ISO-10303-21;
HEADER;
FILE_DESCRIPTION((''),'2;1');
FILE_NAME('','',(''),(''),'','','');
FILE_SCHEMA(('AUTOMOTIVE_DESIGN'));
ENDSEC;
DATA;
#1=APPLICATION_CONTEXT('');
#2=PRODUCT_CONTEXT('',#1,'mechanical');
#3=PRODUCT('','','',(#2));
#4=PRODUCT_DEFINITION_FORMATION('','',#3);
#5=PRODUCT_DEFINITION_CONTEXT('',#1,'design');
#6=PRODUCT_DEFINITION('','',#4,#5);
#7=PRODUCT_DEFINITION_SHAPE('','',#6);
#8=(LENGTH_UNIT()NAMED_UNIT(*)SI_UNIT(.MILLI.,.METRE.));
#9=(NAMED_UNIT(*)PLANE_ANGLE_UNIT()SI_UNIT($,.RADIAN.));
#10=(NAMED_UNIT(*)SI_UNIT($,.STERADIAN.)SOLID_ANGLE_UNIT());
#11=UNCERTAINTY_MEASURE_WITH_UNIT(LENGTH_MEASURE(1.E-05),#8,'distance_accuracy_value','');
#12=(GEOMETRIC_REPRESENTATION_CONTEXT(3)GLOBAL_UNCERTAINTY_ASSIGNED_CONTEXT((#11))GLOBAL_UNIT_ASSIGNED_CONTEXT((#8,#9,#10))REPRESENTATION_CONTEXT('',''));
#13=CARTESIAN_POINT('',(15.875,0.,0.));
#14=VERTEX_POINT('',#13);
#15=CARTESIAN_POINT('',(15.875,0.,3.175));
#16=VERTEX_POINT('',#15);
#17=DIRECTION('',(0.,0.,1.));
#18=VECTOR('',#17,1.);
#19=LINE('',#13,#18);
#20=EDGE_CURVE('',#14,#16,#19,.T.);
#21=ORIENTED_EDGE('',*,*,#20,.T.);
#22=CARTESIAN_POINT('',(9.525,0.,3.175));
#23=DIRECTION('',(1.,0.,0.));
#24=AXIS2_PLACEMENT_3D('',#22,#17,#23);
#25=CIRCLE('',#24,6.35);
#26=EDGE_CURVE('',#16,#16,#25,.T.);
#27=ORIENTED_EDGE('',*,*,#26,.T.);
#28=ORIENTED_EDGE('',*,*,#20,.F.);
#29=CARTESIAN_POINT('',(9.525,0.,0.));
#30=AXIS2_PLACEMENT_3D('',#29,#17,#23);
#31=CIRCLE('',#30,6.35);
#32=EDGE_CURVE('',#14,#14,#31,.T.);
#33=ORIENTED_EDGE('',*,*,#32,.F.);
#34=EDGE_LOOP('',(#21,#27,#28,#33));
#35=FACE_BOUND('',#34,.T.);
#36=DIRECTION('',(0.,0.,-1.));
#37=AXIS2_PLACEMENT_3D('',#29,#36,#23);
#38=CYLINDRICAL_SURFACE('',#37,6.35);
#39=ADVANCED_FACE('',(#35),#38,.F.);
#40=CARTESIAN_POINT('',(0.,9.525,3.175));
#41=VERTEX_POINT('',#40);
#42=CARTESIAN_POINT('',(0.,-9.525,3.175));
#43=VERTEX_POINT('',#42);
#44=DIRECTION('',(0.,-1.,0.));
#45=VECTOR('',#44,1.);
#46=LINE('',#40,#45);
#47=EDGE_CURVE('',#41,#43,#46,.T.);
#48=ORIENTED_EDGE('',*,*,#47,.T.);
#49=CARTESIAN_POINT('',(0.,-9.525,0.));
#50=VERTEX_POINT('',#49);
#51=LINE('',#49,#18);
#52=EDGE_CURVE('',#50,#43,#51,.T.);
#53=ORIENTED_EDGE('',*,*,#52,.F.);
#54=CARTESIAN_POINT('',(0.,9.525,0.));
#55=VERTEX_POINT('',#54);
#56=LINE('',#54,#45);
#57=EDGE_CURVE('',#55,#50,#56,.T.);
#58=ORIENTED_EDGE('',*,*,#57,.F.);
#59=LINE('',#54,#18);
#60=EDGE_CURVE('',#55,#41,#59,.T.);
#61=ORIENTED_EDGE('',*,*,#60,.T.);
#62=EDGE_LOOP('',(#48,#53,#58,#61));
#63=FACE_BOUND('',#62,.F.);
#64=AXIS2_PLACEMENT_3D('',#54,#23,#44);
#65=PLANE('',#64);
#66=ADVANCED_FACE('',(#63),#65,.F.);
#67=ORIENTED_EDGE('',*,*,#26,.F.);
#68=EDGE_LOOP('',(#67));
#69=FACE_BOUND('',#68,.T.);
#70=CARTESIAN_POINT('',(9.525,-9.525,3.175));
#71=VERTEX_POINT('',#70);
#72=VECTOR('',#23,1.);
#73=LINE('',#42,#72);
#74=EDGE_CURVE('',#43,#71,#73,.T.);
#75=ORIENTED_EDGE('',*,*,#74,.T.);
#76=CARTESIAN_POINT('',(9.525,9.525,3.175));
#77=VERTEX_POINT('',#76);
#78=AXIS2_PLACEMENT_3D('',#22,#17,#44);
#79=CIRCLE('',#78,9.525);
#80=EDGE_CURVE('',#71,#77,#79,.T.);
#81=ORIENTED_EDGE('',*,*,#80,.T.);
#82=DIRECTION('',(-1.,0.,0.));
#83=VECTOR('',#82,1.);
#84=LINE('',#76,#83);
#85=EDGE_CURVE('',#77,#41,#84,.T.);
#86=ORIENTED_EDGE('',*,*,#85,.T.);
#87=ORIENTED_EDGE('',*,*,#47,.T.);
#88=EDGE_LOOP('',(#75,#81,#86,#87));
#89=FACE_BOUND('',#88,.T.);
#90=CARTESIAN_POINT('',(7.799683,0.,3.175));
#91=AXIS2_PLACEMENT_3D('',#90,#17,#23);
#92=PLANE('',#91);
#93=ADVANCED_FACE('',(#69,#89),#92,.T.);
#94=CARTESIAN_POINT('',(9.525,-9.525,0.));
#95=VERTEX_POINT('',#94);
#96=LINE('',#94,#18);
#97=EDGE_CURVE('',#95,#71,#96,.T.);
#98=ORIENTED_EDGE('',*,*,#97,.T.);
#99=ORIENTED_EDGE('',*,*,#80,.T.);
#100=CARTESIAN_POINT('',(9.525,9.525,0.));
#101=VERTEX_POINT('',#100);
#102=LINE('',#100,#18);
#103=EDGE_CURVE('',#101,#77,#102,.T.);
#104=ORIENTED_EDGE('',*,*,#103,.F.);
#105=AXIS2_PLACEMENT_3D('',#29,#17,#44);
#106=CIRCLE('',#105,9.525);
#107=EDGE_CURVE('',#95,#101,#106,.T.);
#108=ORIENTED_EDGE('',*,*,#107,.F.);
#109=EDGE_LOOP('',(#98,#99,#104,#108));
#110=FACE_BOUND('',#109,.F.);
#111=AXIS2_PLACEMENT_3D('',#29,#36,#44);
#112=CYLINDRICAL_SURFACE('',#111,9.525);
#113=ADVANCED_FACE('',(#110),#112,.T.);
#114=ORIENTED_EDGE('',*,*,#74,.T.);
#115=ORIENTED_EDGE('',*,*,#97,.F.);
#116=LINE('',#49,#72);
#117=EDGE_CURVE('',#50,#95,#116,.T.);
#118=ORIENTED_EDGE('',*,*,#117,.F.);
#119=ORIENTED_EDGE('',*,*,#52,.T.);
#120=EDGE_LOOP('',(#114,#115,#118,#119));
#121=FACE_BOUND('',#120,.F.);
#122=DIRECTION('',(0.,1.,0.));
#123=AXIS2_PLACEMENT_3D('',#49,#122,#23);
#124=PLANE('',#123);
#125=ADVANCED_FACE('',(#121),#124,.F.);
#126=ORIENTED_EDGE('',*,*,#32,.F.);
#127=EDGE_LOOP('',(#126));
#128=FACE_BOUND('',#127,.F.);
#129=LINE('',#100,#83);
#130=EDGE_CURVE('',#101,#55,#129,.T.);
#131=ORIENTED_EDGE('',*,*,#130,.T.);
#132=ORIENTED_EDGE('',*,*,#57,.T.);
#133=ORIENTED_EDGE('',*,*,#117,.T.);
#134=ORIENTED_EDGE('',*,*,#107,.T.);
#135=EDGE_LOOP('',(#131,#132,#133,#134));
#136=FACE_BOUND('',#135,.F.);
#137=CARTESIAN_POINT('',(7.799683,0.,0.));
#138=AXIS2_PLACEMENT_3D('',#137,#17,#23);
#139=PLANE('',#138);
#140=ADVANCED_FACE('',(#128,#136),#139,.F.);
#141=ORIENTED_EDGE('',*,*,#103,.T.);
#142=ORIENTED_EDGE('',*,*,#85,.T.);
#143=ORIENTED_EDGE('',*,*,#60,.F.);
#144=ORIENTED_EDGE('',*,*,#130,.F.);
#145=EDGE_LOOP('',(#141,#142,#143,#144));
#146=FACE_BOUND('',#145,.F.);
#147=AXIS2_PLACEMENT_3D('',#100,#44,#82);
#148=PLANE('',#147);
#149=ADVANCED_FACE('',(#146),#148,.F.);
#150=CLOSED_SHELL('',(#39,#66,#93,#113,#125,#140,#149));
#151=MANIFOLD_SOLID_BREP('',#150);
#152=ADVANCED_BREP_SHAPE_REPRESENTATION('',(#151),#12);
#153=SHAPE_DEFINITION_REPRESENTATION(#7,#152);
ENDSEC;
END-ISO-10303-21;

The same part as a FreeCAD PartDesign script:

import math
import FreeCAD as App
import Part
import Sketcher
Q = App.Units.Quantity

doc = App.newDocument("Part")
params = doc.addObject("Spreadsheet::Sheet", "Params")
for row, (alias, value) in enumerate([
    ("sketch1_diameter", "0.5 in"),
    ("sketch1_radius", "0.375 in"),
    ("sketch1_width", "0.375 in"),
    ("pad1_length", "0.125 in"),
], start=1):
    params.set(f"A{row}", alias)
    params.set(f"B{row}", "=" + value)
    params.setAlias(f"B{row}", alias)

body = doc.addObject("PartDesign::Body", "Body")

# Sketch on XY plane
sketch1 = doc.addObject("Sketcher::SketchObject", "Sketch")
body.addObject(sketch1)
sketch1.AttachmentSupport = (doc.XY_Plane, [""])
sketch1.MapMode = "FlatFace"
sketch1.addGeometry([
    Part.LineSegment(App.Vector(0, 9.525, 0), App.Vector(0, -9.525, 0)),  # 0
    Part.LineSegment(App.Vector(0, -9.525, 0), App.Vector(9.525, -9.525, 0)),  # 1
    Part.ArcOfCircle(Part.Circle(App.Vector(9.525, 0, 0), App.Vector(0, 0, 1), 9.525), math.radians(-90), math.radians(90)),  # 2
    Part.LineSegment(App.Vector(9.525, 9.525, 0), App.Vector(0, 9.525, 0)),  # 3
    Part.Circle(App.Vector(9.525, 0, 0), App.Vector(0, 0, 1), 6.35),  # 4
], False)
sketch1.addConstraint([
    Sketcher.Constraint("Coincident", 0, 2, 1, 1),
    Sketcher.Constraint("Tangent", 1, 2, 2, 1),
    Sketcher.Constraint("Tangent", 2, 2, 3, 1),
    Sketcher.Constraint("Coincident", 3, 2, 0, 1),
    Sketcher.Constraint("Vertical", 0),
    Sketcher.Constraint("Horizontal", 1),
    Sketcher.Constraint("Horizontal", 3),
    Sketcher.Constraint("Coincident", 4, 3, 2, 3),
    Sketcher.Constraint("Symmetric", 0, 2, 3, 2, -1, 1),
    Sketcher.Constraint("Diameter", 4, Q("0.5 in")),
    Sketcher.Constraint("Radius", 2, Q("0.375 in")),
    Sketcher.Constraint("DistanceX", 1, 1, 1, 2, Q("0.375 in")),
])
sketch1.setExpression("Constraints[9]", "Params.sketch1_diameter")
sketch1.setExpression("Constraints[10]", "Params.sketch1_radius")
sketch1.setExpression("Constraints[11]", "Params.sketch1_width")
pad1 = doc.addObject("PartDesign::Pad", "Pad")
body.addObject(pad1)
pad1.Profile = sketch1
pad1.setExpression("Length", "Params.pad1_length")

doc.recompute()
